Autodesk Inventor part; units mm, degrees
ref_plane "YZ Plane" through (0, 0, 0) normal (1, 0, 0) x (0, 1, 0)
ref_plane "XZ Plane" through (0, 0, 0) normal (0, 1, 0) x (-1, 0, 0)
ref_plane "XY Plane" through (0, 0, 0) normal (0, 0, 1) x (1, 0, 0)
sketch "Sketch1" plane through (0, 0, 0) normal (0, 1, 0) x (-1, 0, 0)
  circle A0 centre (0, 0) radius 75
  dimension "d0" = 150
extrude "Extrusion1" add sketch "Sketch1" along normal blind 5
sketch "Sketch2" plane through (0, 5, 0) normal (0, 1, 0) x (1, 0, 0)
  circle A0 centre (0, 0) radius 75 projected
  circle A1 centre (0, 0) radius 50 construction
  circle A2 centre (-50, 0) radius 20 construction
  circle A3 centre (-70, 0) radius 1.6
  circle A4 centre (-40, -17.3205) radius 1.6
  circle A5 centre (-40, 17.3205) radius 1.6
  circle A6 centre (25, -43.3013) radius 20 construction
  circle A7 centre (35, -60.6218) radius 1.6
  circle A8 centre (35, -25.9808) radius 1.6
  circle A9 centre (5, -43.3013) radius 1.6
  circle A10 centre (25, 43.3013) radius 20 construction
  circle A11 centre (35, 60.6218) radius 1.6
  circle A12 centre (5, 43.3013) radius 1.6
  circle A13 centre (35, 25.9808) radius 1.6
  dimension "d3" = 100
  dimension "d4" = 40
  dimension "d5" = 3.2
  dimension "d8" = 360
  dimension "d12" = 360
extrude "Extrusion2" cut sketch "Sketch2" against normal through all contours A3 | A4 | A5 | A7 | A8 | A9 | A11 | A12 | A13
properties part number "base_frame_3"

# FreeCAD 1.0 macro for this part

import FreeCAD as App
import Part
import Sketcher
from FreeCAD import Vector

doc = App.newDocument("Part")
body = doc.addObject("PartDesign::Body", "Body")

sketch1 = body.newObject("Sketcher::SketchObject", "Sketch")
sketch1.AttachmentSupport = (doc.getObject("XZ_Plane"), [""])
sketch1.MapMode = "FlatFace"
sketch1.addGeometry(Part.Circle(Vector(0, 0, 0), Vector(0, 0, 1), 75), False)
sketch1.addConstraint([
    Sketcher.Constraint("Coincident", 0, 3, -1, 1),
    Sketcher.Constraint("Diameter", 0, 150.0),
])
pad1 = body.newObject("PartDesign::Pad", "Pad")
pad1.Profile = sketch1
pad1.Length = 5
pad1.Reversed = True

sketch2 = body.newObject("Sketcher::SketchObject", "Sketch001")
sketch2.AttachmentSupport = (doc.getObject("XZ_Plane"), [""])
sketch2.MapMode = "FlatFace"
sketch2.AttachmentOffset = App.Placement(Vector(0, 0, -5), App.Rotation())
sketch2.addGeometry([
    Part.Circle(Vector(-70, 0, 0), Vector(0, 0, 1), 1.6),
    Part.Circle(Vector(-40, 17.3, 0), Vector(0, 0, 1), 1.6),
    Part.Circle(Vector(-40, -17.3, 0), Vector(0, 0, 1), 1.6),
    Part.Circle(Vector(35, 60.6, 0), Vector(0, 0, 1), 1.6),
    Part.Circle(Vector(35, 26, 0), Vector(0, 0, 1), 1.6),
    Part.Circle(Vector(5, 43.3, 0), Vector(0, 0, 1), 1.6),
    Part.Circle(Vector(35, -60.6, 0), Vector(0, 0, 1), 1.6),
    Part.Circle(Vector(5, -43.3, 0), Vector(0, 0, 1), 1.6),
    Part.Circle(Vector(35, -26, 0), Vector(0, 0, 1), 1.6),
], False)
sketch2.addConstraint([
    Sketcher.Constraint("Equal", 0, 1),
    Sketcher.Constraint("Equal", 1, 2),
    Sketcher.Constraint("Equal", 2, 3),
    Sketcher.Constraint("Equal", 3, 4),
    Sketcher.Constraint("Equal", 4, 5),
    Sketcher.Constraint("Equal", 5, 6),
    Sketcher.Constraint("Equal", 6, 7),
    Sketcher.Constraint("Equal", 7, 8),
    Sketcher.Constraint("Symmetric", 1, 3, 2, 3, -1),
    Sketcher.Constraint("Symmetric", 3, 3, 6, 3, -1),
    Sketcher.Constraint("Symmetric", 5, 3, 7, 3, -1),
    Sketcher.Constraint("Symmetric", 4, 3, 8, 3, -1),
    Sketcher.Constraint("PointOnObject", 0, 3, -1),
    Sketcher.Constraint("Vertical", 3, 3, 4, 3),
    Sketcher.Constraint("Diameter", 0, 3.2),
    Sketcher.Constraint("DistanceX", 1, 3, -1, 1, 40.0),
    Sketcher.Constraint("DistanceX", 0, 3, -1, 1, 70.0),
    Sketcher.Constraint("DistanceX", -1, 1, 3, 3, 35.0),
    Sketcher.Constraint("DistanceX", -1, 1, 5, 3, 5.0),
    Sketcher.Constraint("DistanceY", 2, 3, 1, 3, 34.641),
    Sketcher.Constraint("DistanceY", 4, 3, 3, 3, 34.641),
    Sketcher.Constraint("DistanceY", 6, 3, 5, 3, 103.923),
    Sketcher.Constraint("DistanceY", -1, 1, 3, 3, 60.6218),
])
pocket1 = body.newObject("PartDesign::Pocket", "Pocket")
pocket1.Profile = sketch2
pocket1.Type = "ThroughAll"
pocket1.Reversed = True

doc.recompute()
